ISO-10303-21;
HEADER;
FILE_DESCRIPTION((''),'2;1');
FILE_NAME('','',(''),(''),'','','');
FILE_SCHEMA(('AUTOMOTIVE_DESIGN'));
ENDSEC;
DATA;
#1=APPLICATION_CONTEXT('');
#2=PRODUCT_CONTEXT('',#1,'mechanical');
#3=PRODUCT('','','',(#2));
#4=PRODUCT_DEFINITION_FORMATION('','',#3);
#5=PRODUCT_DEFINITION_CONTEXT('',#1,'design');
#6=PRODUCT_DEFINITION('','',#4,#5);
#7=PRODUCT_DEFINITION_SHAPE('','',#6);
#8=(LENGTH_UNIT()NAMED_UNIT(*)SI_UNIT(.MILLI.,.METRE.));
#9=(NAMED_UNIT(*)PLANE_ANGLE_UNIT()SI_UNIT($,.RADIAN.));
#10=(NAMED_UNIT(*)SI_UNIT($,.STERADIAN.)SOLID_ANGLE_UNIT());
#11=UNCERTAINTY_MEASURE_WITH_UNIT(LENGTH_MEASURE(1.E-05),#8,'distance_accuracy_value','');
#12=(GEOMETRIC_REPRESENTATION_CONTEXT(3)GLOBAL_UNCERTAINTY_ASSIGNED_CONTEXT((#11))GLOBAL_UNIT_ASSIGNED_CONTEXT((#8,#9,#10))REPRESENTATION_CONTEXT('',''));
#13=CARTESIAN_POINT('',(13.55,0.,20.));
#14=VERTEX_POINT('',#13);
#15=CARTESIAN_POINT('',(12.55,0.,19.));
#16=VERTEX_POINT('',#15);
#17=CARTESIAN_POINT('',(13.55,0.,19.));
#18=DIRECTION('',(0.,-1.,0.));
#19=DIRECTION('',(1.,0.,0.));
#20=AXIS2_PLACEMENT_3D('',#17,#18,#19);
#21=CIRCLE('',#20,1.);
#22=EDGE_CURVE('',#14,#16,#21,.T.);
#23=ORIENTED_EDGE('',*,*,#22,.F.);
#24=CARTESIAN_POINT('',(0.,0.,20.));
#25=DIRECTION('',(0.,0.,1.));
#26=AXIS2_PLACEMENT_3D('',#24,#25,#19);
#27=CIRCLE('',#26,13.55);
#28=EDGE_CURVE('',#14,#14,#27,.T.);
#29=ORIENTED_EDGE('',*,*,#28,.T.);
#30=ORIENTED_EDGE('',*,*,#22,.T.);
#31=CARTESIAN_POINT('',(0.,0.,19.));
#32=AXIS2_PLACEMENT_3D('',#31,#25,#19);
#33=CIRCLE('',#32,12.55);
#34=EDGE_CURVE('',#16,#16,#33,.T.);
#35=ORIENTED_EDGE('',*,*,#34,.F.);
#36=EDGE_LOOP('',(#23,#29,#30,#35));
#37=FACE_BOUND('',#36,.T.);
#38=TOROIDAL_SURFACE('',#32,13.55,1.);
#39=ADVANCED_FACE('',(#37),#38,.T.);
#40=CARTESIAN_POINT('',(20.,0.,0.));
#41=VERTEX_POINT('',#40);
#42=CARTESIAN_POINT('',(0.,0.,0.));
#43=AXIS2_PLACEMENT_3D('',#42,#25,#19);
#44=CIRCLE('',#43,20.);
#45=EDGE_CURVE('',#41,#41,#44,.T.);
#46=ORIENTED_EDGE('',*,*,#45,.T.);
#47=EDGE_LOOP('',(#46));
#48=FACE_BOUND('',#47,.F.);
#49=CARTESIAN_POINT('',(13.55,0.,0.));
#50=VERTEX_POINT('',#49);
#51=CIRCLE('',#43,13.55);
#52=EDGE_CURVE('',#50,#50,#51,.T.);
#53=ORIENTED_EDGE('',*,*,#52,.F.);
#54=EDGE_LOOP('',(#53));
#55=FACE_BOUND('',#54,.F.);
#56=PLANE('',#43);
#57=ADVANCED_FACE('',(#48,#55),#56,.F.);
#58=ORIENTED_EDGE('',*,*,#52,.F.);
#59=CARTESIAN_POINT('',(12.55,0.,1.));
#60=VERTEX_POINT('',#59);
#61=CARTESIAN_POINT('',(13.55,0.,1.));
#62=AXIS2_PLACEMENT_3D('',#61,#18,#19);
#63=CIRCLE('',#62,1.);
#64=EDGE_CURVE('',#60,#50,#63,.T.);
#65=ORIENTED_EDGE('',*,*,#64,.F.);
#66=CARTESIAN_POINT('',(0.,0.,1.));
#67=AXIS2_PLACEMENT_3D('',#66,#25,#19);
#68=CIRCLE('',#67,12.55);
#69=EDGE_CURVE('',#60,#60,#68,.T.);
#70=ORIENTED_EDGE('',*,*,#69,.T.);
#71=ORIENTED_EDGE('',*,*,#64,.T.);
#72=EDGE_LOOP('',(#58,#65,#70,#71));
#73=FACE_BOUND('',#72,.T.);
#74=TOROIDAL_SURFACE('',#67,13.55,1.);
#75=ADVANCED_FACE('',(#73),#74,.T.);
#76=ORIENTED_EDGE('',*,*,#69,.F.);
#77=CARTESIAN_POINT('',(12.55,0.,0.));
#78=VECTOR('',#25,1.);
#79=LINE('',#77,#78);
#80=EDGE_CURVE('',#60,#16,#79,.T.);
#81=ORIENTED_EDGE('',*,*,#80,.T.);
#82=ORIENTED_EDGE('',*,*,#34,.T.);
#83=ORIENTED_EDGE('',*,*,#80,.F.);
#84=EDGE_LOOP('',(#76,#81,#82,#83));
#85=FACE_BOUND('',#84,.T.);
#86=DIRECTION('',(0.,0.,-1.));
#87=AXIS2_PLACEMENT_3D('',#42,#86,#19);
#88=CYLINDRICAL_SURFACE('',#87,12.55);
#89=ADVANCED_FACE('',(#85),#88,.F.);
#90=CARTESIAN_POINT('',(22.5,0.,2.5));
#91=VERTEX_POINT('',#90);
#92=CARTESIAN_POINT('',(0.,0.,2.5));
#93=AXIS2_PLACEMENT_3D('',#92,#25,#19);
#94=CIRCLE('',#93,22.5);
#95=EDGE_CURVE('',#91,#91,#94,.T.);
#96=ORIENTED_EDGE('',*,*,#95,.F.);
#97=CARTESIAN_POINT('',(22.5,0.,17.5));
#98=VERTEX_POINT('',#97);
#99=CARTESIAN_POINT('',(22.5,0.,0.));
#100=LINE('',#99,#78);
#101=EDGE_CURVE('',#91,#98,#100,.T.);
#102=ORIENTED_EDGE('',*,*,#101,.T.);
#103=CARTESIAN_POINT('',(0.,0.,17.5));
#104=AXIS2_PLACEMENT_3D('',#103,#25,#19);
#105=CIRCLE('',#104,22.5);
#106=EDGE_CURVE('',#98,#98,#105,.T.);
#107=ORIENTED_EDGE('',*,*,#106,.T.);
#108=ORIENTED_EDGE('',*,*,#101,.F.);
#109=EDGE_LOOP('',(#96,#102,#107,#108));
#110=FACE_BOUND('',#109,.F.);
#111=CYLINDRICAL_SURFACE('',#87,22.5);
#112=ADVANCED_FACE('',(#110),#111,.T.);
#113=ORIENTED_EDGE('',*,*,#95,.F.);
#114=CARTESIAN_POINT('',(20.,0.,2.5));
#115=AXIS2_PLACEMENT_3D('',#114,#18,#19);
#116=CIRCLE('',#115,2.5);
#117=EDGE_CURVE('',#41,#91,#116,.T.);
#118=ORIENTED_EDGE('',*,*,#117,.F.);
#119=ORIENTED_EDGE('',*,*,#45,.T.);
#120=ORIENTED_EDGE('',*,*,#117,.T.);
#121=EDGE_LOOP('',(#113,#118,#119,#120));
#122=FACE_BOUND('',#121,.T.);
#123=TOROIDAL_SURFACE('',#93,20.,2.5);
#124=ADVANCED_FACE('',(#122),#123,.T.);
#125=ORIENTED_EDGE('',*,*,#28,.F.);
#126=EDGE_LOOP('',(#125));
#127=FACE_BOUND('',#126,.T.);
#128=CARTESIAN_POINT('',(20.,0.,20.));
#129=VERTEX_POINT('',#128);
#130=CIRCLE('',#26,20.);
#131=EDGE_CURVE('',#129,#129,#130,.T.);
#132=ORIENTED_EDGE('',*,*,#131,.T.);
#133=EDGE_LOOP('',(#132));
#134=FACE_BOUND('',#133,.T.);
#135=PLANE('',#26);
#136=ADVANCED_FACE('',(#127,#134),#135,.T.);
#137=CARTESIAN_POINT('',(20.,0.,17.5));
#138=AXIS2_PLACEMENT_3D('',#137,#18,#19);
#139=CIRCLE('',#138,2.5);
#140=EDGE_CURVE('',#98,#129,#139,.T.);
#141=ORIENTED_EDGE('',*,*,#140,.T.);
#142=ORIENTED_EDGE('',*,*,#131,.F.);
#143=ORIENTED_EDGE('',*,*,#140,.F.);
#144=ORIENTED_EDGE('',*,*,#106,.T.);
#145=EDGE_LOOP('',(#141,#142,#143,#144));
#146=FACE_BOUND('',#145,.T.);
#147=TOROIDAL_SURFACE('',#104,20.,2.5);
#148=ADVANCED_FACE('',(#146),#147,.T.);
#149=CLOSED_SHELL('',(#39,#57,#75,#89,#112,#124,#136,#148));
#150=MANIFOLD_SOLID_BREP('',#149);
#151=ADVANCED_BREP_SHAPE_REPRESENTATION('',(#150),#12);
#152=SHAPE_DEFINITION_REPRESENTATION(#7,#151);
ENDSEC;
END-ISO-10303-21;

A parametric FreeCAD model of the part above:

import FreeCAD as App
import Part
import Sketcher

V = App.Vector
Q = App.Units.Quantity


def edges_at(feature, points):
    """Names of the edges that pass closest to the given points."""
    edges = feature.Shape.Edges
    near = lambda p: min(range(len(edges)), key=lambda i: edges[i].distToShape(Part.Vertex(*p))[0])
    return sorted({f"Edge{near(p) + 1}" for p in points})

doc = App.newDocument("Part")
params = doc.addObject("Spreadsheet::Sheet", "Params")
for row, (alias, value) in enumerate([
    ("sketch1_diameter", "45 mm"),
    ("sketch1_diameter2", "25.1 mm"),
    ("pad1_length", "20 mm"),
    ("fillet_radius", "2.5 mm"),
    ("fillet2_radius", "1 mm"),
    ("fillet3_radius", "1 mm"),
    ("fillet4_radius", "2.5 mm"),
], start=1):
    params.set(f"A{row}", alias)
    params.set(f"B{row}", "=" + value)
    params.setAlias(f"B{row}", alias)

body = doc.addObject("PartDesign::Body", "Body")

sketch1 = body.newObject("Sketcher::SketchObject", "Sketch")
sketch1.AttachmentSupport = (doc.getObject("XY_Plane"), [""])
sketch1.MapMode = "FlatFace"
sketch1.addGeometry([
    Part.Circle(V(0, 0, 0), V(0, 0, 1), 22),
    Part.Circle(V(0, 0, 0), V(0, 0, 1), 13),
], False)
sketch1.addConstraint([
    Sketcher.Constraint("Coincident", 0, 3, -1, 1),
    Sketcher.Constraint("Coincident", 1, 3, -1, 1),
    Sketcher.Constraint("Diameter", 0, Q("45 mm")),
    Sketcher.Constraint("Diameter", 1, Q("25.1 mm")),
])
sketch1.setExpression("Constraints[2]", "Params.sketch1_diameter")
sketch1.setExpression("Constraints[3]", "Params.sketch1_diameter2")
pad1 = body.newObject("PartDesign::Pad", "Pad")
pad1.Profile = sketch1
pad1.setExpression("Length", "Params.pad1_length")
doc.recompute()

fillet = body.newObject("PartDesign::Fillet", "Fillet")
fillet.Base = (pad1, edges_at(pad1, [(-22.5, 0, 20)]))
fillet.setExpression("Radius", "Params.fillet_radius")
doc.recompute()

fillet2 = body.newObject("PartDesign::Fillet", "Fillet001")
fillet2.Base = (fillet, edges_at(fillet, [(-12.55, 0, 20)]))
fillet2.setExpression("Radius", "Params.fillet2_radius")
doc.recompute()

fillet3 = body.newObject("PartDesign::Fillet", "Fillet002")
fillet3.Base = (fillet2, edges_at(fillet2, [(-12.55, 0, 0)]))
fillet3.setExpression("Radius", "Params.fillet3_radius")
doc.recompute()

fillet4 = body.newObject("PartDesign::Fillet", "Fillet003")
fillet4.Base = (fillet3, edges_at(fillet3, [(-22.5, 0, 0)]))
fillet4.setExpression("Radius", "Params.fillet4_radius")

doc.recompute()
